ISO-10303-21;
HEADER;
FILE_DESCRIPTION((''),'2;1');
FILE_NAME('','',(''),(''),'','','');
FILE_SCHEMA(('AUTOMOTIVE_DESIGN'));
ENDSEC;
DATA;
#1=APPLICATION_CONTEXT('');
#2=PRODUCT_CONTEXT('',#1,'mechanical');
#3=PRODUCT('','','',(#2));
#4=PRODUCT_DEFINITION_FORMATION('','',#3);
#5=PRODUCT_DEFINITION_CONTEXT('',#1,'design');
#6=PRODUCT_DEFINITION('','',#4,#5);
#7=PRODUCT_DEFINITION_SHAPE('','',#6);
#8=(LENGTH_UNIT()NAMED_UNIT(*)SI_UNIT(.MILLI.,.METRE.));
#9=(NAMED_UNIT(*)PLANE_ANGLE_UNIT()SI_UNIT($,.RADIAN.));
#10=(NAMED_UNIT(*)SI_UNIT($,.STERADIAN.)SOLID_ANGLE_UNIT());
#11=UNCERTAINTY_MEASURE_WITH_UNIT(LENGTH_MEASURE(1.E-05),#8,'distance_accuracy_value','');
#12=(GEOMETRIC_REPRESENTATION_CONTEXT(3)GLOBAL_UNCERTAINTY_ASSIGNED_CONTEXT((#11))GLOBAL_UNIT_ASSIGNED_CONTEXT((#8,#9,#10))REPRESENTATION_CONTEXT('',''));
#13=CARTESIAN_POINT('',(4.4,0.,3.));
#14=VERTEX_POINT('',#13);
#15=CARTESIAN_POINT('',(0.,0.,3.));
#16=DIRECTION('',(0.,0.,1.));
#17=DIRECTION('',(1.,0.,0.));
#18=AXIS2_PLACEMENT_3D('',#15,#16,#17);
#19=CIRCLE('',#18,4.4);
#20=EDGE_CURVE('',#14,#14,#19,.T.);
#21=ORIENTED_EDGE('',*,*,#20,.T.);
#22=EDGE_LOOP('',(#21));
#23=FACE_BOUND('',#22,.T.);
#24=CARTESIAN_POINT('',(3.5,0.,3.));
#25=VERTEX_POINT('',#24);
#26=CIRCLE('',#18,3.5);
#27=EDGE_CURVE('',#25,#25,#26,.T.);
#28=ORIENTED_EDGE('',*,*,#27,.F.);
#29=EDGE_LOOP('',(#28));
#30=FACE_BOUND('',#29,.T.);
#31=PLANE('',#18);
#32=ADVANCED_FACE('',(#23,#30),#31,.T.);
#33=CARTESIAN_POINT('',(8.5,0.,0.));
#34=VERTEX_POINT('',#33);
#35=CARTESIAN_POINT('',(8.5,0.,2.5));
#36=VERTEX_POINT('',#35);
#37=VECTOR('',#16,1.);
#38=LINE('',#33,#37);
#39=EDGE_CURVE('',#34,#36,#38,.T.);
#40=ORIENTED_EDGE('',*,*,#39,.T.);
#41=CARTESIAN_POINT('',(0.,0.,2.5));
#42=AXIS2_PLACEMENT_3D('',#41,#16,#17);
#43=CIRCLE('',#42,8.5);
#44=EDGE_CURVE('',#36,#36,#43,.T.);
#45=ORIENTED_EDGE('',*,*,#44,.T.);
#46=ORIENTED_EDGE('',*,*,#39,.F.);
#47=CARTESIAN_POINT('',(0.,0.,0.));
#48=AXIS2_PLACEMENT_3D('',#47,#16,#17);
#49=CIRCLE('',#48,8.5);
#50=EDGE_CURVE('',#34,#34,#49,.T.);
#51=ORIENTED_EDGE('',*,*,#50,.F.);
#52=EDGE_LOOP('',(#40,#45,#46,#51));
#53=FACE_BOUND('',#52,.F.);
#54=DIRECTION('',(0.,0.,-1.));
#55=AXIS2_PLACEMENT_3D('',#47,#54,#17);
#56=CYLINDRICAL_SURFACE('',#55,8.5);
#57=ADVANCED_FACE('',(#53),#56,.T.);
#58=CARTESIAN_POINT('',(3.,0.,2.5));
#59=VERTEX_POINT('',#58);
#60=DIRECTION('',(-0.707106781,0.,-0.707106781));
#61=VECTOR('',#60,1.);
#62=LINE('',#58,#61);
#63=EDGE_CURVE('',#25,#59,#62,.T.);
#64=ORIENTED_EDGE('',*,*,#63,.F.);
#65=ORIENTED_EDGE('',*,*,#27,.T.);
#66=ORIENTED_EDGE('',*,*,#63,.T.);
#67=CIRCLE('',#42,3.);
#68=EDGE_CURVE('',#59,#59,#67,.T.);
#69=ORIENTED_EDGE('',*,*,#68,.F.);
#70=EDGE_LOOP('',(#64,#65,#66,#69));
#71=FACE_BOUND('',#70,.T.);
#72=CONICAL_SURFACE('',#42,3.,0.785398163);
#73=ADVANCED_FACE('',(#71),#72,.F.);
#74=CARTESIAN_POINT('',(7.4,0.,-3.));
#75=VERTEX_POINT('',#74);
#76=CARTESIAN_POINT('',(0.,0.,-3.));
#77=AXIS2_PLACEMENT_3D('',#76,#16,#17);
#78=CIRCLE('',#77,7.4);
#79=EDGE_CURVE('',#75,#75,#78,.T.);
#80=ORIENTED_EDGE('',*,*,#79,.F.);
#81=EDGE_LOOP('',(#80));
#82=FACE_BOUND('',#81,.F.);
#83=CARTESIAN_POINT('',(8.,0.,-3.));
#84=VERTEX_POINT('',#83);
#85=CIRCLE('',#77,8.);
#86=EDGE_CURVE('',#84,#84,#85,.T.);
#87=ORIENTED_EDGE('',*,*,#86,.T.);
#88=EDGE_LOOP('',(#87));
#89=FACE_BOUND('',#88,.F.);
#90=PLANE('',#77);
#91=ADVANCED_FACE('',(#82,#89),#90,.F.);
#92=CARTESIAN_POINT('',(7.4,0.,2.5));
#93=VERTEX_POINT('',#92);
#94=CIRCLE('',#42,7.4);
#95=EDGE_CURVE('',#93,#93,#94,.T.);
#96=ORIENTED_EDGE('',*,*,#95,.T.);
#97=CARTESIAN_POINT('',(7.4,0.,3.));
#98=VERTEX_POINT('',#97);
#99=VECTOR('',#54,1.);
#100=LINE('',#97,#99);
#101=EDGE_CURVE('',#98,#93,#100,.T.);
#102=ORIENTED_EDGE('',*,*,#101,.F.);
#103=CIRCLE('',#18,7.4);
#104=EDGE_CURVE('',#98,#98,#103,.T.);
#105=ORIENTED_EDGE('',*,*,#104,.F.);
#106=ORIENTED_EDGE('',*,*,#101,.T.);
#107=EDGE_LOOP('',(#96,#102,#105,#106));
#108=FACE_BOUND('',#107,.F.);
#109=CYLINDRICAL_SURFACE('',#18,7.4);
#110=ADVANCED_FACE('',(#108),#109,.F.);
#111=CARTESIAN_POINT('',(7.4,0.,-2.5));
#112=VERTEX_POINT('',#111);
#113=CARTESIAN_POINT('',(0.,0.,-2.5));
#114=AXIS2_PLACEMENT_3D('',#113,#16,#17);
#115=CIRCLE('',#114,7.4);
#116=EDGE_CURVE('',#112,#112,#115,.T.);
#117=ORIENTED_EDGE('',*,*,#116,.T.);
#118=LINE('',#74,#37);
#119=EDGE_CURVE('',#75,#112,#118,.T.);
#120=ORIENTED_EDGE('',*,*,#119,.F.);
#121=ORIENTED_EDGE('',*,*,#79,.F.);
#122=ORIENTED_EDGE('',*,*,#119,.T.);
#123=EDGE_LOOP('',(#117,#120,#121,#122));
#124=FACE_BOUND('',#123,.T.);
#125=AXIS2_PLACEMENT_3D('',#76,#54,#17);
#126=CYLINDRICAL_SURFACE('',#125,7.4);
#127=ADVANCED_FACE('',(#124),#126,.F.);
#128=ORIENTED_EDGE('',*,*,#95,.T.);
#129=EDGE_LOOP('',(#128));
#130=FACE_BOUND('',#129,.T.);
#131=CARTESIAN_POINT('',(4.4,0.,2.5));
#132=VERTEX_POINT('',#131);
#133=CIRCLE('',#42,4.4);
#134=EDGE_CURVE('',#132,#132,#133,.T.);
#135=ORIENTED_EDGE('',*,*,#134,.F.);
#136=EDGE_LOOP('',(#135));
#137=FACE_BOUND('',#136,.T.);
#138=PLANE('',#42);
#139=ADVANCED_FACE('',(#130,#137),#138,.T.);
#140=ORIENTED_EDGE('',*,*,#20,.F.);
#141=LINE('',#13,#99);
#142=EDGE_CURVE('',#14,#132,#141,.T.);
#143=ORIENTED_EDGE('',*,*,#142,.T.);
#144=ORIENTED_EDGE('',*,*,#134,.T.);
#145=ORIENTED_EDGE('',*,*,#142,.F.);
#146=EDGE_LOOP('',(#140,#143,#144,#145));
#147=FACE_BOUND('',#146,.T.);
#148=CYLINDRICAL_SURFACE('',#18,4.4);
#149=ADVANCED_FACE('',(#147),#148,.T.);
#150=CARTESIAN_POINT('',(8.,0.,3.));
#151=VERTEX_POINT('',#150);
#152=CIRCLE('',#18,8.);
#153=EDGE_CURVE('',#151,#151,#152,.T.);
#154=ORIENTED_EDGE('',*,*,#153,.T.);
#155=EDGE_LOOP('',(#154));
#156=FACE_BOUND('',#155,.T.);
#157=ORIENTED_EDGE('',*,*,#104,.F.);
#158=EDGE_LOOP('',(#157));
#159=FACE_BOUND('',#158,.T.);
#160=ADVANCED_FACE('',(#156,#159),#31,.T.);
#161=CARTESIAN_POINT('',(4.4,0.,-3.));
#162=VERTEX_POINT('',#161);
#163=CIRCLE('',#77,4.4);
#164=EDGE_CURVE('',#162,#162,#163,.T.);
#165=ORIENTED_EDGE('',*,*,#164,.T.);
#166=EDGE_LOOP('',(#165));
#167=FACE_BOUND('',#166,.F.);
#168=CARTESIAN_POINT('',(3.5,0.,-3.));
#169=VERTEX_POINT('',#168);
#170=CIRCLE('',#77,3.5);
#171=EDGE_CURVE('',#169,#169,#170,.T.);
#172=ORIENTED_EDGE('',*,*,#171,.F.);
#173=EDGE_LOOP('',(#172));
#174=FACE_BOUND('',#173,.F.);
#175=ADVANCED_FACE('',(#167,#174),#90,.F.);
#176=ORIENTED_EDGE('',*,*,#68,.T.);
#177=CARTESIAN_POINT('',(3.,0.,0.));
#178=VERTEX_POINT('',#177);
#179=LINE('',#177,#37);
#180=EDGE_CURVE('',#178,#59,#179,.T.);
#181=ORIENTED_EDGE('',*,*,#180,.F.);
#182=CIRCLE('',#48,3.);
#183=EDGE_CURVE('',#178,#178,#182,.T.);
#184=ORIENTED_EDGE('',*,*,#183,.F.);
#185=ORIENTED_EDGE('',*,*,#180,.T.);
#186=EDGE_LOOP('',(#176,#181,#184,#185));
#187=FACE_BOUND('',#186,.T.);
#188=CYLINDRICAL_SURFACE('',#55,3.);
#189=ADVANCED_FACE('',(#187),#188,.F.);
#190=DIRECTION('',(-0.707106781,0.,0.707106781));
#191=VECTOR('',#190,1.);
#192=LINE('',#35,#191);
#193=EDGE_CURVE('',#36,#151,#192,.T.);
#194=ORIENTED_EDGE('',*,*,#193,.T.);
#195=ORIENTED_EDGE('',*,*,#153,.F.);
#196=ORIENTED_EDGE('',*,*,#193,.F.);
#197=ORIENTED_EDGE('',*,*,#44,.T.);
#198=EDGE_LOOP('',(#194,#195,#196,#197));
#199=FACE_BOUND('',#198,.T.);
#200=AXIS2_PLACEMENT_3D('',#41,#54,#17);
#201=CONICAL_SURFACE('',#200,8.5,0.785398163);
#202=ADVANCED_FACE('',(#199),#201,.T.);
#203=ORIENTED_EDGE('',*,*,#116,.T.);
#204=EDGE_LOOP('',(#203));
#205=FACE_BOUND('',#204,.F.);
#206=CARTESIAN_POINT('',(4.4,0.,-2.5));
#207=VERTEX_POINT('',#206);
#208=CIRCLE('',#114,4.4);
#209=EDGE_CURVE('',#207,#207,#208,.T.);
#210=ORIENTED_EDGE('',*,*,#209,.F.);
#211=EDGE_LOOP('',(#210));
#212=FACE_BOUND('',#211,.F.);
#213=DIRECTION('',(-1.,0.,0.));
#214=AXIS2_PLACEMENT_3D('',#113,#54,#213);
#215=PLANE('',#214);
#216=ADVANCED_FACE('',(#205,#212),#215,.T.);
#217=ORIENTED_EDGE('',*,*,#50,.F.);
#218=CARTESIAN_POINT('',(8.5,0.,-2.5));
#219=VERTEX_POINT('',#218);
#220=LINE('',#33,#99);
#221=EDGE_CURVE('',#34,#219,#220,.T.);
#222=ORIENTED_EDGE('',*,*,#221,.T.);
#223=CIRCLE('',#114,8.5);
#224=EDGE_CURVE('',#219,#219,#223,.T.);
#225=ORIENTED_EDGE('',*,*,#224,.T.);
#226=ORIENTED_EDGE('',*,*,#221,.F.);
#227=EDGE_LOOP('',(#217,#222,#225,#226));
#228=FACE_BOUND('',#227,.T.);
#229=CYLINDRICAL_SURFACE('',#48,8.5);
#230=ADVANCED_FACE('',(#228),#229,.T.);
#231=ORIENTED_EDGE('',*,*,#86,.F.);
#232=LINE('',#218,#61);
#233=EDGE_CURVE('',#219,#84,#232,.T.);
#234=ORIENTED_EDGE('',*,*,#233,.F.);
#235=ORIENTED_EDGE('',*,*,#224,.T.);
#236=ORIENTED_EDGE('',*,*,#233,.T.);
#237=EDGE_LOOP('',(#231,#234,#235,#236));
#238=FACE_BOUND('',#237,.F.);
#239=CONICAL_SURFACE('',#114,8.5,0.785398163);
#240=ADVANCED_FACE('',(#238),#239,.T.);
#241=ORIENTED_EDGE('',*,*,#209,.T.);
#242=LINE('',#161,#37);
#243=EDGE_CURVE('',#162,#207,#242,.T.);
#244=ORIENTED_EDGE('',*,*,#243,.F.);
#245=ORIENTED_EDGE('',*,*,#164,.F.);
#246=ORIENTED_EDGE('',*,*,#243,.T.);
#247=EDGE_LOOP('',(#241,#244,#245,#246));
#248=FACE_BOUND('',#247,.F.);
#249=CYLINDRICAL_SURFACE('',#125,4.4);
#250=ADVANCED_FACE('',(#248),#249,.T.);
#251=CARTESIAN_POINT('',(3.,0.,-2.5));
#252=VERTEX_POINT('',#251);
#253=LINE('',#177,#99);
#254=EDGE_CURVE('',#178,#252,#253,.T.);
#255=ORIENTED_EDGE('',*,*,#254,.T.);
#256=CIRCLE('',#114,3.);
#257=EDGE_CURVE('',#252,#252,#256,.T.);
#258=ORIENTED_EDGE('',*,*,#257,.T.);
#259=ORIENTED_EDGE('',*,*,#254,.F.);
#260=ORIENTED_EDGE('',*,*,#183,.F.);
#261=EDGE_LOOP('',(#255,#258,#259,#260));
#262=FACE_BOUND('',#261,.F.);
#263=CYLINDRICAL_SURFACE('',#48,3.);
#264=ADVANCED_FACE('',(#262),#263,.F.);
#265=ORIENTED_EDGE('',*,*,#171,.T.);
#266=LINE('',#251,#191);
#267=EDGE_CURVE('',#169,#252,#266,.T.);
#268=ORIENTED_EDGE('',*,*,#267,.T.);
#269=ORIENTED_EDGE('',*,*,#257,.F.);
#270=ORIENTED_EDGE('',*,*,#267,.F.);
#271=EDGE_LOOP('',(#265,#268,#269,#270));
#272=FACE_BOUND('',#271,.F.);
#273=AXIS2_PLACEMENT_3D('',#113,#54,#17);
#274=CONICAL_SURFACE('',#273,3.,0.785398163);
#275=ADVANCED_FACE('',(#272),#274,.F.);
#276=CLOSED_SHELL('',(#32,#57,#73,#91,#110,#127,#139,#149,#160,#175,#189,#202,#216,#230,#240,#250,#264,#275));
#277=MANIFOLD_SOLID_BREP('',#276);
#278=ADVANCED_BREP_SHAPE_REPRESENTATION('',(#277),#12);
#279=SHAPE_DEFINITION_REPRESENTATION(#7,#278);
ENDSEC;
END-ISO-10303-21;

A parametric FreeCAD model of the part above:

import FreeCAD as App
import Part
import Sketcher

V = App.Vector
Q = App.Units.Quantity


def edges_at(feature, points):
    """Names of the edges that pass closest to the given points."""
    edges = feature.Shape.Edges
    near = lambda p: min(range(len(edges)), key=lambda i: edges[i].distToShape(Part.Vertex(*p))[0])
    return sorted({f"Edge{near(p) + 1}" for p in points})

doc = App.newDocument("Part")
body = doc.addObject("PartDesign::Body", "Body")

sketch1 = doc.addObject("Sketcher::SketchObject", "Sketch")
body.addObject(sketch1)
sketch1.AttachmentSupport = (doc.XY_Plane, [""])
sketch1.MapMode = "FlatFace"
sketch1.addGeometry(Part.Circle(V(0, 0, 0), V(0, 0, 1), 8.5), False)
sketch1.addGeometry(Part.Circle(V(0, 0, 0), V(0, 0, 1), 3), False)
sketch1.addConstraint(Sketcher.Constraint("Coincident", 0, 3, -1, 1))
sketch1.addConstraint(Sketcher.Constraint("Coincident", 1, 3, -1, 1))
sketch1.addConstraint(Sketcher.Constraint("Diameter", 0, Q("17 mm")))
sketch1.addConstraint(Sketcher.Constraint("Diameter", 1, Q("6 mm")))
pad1 = doc.addObject("PartDesign::Pad", "Pad")
body.addObject(pad1)
pad1.Profile = sketch1
pad1.Length = 6
pad1.Midplane = True
doc.recompute()

chamfer = doc.addObject("PartDesign::Chamfer", "Chamfer")
body.addObject(chamfer)
chamfer.Base = (pad1, edges_at(pad1, [
    (-8.5, 0, -3),
    (-8.5, 0, 3),
    (-3, 0, 3),
    (-3, 0, -3),
]))
chamfer.Size = 0.5

sketch2 = doc.addObject("Sketcher::SketchObject", "Sketch001")
body.addObject(sketch2)
sketch2.AttachmentSupport = (doc.XY_Plane, [""])
sketch2.MapMode = "FlatFace"
sketch2.AttachmentOffset = App.Placement(V(0, 0, 3), App.Rotation())
sketch2.addGeometry(Part.Circle(V(0, 0, 0), V(0, 0, 1), 7.4), False)
sketch2.addGeometry(Part.Circle(V(0, 0, 0), V(0, 0, 1), 4.4), False)
sketch2.addConstraint(Sketcher.Constraint("Coincident", 0, 3, -1, 1))
sketch2.addConstraint(Sketcher.Constraint("Coincident", 1, 3, -1, 1))
sketch2.addConstraint(Sketcher.Constraint("Diameter", 0, Q("14.8 mm")))
sketch2.addConstraint(Sketcher.Constraint("Diameter", 1, Q("8.8 mm")))
pocket1 = doc.addObject("PartDesign::Pocket", "Pocket")
body.addObject(pocket1)
pocket1.Profile = sketch2
pocket1.Length = 0.5
doc.recompute()

mirrored = doc.addObject("PartDesign::Mirrored", "Mirrored")
body.addObject(mirrored)
mirrored.Originals = [pocket1]
mirrored.MirrorPlane = (doc.XY_Plane, [""])
body.Tip = mirrored

doc.recompute()
